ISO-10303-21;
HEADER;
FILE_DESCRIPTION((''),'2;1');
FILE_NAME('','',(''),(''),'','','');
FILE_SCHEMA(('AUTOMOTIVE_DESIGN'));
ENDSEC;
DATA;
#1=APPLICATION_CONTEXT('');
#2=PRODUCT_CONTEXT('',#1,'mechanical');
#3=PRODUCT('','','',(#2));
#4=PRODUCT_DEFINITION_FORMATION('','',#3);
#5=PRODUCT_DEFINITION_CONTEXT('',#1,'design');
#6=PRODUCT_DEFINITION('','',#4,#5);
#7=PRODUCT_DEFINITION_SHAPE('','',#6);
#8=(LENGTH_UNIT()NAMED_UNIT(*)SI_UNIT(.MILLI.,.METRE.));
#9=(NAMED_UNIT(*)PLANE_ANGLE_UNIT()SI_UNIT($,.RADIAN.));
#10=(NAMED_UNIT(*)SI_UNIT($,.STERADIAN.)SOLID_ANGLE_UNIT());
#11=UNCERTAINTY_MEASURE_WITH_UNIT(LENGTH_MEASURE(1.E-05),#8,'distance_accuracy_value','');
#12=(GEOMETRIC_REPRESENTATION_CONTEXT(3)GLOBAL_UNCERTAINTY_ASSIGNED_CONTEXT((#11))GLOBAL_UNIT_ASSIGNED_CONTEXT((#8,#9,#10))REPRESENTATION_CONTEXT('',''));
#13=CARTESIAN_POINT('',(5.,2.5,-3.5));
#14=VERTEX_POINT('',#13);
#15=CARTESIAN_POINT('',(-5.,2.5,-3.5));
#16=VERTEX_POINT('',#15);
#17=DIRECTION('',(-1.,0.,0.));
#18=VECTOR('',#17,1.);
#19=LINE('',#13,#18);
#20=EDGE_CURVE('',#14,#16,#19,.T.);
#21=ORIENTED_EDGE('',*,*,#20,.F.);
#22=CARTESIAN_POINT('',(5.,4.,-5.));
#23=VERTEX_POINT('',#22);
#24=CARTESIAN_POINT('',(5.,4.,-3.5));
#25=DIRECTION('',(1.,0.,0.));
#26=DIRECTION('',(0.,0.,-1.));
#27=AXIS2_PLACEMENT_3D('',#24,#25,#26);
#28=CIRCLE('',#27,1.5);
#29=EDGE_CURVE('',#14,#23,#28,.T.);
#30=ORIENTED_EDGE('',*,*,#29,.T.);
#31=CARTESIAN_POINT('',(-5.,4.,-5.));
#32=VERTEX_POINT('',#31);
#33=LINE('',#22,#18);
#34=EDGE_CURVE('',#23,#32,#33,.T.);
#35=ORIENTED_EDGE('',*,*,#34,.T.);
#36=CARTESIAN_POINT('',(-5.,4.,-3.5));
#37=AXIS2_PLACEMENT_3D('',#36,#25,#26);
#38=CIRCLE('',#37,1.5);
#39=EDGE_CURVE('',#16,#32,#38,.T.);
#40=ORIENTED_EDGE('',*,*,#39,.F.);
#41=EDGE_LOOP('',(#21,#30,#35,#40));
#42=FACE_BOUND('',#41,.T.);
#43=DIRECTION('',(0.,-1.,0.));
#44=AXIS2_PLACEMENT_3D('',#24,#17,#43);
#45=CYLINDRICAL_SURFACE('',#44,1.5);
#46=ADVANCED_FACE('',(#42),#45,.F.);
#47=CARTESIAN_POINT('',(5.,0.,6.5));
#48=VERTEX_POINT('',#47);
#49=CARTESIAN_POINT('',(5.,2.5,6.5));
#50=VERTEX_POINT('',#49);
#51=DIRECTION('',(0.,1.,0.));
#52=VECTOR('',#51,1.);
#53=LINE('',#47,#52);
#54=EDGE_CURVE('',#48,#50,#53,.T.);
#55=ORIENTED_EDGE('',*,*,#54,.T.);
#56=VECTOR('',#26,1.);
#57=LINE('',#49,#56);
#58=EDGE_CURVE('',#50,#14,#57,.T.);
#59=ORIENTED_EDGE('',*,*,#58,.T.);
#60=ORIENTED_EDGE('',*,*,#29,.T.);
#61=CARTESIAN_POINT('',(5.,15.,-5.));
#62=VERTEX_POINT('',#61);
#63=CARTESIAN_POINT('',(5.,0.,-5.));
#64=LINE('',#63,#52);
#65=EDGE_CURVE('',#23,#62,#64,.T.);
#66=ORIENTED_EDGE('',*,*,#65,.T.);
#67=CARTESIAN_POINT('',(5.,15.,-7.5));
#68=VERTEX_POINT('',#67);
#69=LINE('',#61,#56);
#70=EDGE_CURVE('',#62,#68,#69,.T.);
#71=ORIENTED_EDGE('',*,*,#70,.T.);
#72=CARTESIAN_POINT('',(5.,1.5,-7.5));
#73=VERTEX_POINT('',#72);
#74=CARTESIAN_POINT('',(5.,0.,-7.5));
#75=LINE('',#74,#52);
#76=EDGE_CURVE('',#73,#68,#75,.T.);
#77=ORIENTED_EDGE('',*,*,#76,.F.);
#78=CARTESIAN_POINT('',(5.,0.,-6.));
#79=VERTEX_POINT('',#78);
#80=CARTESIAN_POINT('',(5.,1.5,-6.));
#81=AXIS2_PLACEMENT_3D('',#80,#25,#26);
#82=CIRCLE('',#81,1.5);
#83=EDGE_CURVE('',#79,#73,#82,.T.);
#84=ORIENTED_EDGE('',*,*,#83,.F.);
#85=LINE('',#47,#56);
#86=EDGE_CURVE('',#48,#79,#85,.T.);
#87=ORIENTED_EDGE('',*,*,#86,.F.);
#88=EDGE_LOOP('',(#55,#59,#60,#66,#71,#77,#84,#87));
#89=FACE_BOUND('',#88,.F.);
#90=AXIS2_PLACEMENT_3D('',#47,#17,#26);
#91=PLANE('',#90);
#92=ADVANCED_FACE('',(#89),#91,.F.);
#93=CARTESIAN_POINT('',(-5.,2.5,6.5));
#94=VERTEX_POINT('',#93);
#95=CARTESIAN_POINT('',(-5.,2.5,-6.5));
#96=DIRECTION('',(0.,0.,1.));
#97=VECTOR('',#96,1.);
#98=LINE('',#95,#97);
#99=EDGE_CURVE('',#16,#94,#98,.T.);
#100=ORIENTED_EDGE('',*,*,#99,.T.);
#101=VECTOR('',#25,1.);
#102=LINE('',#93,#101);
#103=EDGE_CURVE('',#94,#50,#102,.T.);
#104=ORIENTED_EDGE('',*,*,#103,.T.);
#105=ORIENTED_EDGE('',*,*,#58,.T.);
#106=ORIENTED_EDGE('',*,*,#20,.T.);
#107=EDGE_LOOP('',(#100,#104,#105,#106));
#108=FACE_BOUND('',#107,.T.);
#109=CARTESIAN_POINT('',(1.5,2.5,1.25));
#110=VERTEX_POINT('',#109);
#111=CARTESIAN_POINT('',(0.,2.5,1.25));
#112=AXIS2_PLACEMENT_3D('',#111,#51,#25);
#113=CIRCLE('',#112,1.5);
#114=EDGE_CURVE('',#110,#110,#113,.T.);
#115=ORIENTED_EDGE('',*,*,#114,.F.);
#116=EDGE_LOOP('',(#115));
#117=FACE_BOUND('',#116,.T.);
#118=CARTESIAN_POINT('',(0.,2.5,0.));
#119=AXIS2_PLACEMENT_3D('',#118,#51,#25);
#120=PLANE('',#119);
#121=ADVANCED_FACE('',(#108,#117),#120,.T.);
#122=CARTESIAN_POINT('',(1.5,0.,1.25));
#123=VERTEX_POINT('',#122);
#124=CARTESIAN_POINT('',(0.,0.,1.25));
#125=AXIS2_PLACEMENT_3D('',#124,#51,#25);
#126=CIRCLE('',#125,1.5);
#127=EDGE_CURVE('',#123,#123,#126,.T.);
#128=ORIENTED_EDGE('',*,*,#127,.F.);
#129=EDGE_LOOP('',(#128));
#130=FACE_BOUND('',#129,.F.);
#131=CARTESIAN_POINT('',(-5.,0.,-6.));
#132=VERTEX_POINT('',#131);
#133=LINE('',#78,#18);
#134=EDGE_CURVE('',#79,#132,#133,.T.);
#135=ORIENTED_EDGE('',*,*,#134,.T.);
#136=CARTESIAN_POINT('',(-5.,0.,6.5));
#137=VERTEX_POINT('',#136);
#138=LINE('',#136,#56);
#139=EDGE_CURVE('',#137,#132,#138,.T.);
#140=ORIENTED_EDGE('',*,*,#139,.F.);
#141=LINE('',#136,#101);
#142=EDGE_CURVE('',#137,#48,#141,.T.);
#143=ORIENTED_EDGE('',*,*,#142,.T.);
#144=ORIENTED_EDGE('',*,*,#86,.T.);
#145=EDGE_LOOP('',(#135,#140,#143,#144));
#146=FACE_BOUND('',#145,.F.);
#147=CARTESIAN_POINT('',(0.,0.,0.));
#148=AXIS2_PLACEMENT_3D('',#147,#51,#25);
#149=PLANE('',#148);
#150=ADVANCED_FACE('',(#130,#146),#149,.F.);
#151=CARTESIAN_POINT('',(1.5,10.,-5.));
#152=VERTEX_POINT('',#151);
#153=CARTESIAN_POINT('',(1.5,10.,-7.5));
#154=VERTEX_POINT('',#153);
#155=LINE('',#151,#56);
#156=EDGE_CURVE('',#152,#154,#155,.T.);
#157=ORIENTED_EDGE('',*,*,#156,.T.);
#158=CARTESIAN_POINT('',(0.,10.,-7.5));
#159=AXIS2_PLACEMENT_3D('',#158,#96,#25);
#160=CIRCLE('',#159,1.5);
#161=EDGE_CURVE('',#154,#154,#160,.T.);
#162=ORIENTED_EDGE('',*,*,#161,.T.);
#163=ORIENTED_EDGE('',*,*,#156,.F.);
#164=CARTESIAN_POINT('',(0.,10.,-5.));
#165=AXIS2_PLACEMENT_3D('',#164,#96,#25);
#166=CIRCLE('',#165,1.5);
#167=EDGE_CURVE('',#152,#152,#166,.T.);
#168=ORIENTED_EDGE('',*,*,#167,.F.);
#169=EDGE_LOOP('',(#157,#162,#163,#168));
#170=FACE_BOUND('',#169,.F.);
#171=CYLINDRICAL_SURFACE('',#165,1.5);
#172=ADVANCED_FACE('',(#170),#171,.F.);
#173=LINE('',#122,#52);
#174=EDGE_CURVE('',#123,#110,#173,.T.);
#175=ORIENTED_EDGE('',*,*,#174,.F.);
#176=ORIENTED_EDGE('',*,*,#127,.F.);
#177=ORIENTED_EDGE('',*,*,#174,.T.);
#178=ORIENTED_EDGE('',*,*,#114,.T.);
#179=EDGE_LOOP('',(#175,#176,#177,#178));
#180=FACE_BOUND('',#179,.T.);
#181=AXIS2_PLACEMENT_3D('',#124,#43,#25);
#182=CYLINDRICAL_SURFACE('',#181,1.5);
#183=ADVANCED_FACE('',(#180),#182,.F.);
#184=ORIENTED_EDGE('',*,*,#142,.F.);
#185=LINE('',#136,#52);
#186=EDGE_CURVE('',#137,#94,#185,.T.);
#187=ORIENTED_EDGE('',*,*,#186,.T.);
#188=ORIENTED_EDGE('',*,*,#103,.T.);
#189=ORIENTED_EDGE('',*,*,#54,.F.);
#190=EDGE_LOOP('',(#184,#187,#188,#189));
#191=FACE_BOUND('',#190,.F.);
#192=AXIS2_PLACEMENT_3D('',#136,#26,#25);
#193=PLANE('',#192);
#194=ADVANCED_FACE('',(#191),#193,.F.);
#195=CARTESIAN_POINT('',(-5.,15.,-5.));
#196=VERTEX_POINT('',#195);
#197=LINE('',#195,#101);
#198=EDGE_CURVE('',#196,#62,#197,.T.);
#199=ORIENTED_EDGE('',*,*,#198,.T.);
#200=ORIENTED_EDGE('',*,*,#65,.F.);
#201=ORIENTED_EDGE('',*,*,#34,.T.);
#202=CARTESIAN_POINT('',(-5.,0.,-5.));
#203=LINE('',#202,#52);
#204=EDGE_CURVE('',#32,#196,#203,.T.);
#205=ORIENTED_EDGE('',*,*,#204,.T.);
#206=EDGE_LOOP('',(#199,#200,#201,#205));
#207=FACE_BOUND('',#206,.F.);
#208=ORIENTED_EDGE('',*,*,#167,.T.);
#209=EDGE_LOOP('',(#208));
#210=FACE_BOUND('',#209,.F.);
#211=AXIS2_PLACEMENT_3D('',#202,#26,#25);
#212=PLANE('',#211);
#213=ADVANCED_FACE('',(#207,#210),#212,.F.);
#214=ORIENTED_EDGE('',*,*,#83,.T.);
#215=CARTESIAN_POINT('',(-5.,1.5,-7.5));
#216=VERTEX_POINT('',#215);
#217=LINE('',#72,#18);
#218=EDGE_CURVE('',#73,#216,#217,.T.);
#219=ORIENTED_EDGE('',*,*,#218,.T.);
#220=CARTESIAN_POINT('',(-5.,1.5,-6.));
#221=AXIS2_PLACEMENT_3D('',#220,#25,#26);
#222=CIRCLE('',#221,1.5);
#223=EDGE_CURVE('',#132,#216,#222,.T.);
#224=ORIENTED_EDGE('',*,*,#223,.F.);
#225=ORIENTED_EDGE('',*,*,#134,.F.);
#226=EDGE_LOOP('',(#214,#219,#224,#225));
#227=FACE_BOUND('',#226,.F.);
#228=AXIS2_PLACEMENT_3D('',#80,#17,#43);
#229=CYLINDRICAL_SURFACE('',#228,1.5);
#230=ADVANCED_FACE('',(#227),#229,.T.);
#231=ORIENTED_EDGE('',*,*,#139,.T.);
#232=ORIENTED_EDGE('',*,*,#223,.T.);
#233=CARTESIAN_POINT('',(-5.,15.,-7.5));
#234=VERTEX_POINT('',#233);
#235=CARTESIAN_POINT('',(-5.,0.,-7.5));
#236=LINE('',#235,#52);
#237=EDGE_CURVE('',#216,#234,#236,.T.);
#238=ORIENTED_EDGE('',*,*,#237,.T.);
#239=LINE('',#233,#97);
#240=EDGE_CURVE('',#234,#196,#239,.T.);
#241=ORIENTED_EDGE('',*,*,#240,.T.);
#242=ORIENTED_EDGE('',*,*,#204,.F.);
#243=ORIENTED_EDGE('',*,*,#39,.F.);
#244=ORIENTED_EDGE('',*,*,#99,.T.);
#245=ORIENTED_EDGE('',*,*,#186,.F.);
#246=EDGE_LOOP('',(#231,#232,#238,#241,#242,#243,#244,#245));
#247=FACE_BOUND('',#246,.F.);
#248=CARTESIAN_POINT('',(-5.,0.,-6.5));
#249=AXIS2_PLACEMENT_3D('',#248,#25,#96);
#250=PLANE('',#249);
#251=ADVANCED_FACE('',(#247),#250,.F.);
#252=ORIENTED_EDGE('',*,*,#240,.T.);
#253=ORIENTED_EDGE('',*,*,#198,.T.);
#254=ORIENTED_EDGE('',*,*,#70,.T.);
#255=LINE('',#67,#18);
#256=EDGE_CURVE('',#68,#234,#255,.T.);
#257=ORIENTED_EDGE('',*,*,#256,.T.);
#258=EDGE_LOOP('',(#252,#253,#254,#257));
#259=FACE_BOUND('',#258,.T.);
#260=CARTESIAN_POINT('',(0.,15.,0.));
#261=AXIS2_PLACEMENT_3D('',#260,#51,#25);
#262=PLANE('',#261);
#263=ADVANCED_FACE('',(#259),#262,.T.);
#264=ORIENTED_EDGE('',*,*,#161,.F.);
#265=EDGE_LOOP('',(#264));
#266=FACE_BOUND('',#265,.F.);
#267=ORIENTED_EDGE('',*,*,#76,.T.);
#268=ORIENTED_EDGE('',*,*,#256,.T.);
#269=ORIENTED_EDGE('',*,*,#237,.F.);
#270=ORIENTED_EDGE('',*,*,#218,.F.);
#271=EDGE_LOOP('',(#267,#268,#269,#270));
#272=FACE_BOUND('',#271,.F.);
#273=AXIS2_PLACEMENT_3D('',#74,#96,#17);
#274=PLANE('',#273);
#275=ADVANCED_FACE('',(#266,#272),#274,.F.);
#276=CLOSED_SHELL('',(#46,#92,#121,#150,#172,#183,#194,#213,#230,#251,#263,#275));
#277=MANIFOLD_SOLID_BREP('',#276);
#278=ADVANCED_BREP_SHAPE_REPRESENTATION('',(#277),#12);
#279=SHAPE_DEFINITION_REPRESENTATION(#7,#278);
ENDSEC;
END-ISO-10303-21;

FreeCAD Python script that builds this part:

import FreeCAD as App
import Part
import Sketcher


def edges_at(feature, points):
    """Names of the edges that pass closest to the given points."""
    edges = feature.Shape.Edges
    near = lambda p: min(range(len(edges)), key=lambda i: edges[i].distToShape(Part.Vertex(*p))[0])
    return sorted({f"Edge{near(p) + 1}" for p in points})

doc = App.newDocument("Part")
body = doc.addObject("PartDesign::Body", "Body")

sketch1 = body.newObject("Sketcher::SketchObject", "Sketch")
sketch1.AttachmentSupport = (doc.getObject("XZ_Plane"), [""])
sketch1.MapMode = "FlatFace"
sketch1.addGeometry(Part.LineSegment(App.Vector(5, 6.5, 0), App.Vector(5, -6.5, 0)), False)
sketch1.addGeometry(Part.LineSegment(App.Vector(5, -6.5, 0), App.Vector(-5, -6.5, 0)), False)
sketch1.addGeometry(Part.LineSegment(App.Vector(-5, -6.5, 0), App.Vector(-5, 6.5, 0)), False)
sketch1.addGeometry(Part.LineSegment(App.Vector(-5, 6.5, 0), App.Vector(5, 6.5, 0)), False)
sketch1.addGeometry(Part.Circle(App.Vector(0, 1.25, 0), App.Vector(0, 0, 1), 1.5), False)
sketch1.addConstraint(Sketcher.Constraint("Coincident", 0, 2, 1, 1))
sketch1.addConstraint(Sketcher.Constraint("Coincident", 1, 2, 2, 1))
sketch1.addConstraint(Sketcher.Constraint("Coincident", 2, 2, 3, 1))
sketch1.addConstraint(Sketcher.Constraint("Coincident", 3, 2, 0, 1))
sketch1.addConstraint(Sketcher.Constraint("Vertical", 0))
sketch1.addConstraint(Sketcher.Constraint("Horizontal", 1))
sketch1.addConstraint(Sketcher.Constraint("Vertical", 2))
sketch1.addConstraint(Sketcher.Constraint("Horizontal", 3))
sketch1.addConstraint(Sketcher.Constraint("Symmetric", 0, 2, 2, 2, -1, 1))
sketch1.addConstraint(Sketcher.Constraint("PointOnObject", 4, 3, -2))
sketch1.addConstraint(Sketcher.Constraint("Diameter", 4, 3.0))
sketch1.addConstraint(Sketcher.Constraint("DistanceX", 1, 2, 1, 1, 10.0))
sketch1.addConstraint(Sketcher.Constraint("DistanceY", 0, 2, 0, 1, 13.0))
sketch1.addConstraint(Sketcher.Constraint("DistanceY", -1, 1, 4, 3, 1.25))
pad1 = body.newObject("PartDesign::Pad", "Pad")
pad1.Profile = sketch1
pad1.Length = 2.5
pad1.Reversed = True

sketch2 = body.newObject("Sketcher::SketchObject", "Sketch001")
sketch2.AttachmentSupport = (doc.getObject("XZ_Plane"), [""])
sketch2.MapMode = "FlatFace"
sketch2.addGeometry(Part.LineSegment(App.Vector(-5, -7.5, 0), App.Vector(-5, -5, 0)), False)
sketch2.addGeometry(Part.LineSegment(App.Vector(-5, -5, 0), App.Vector(5, -5, 0)), False)
sketch2.addGeometry(Part.LineSegment(App.Vector(5, -5, 0), App.Vector(5, -7.5, 0)), False)
sketch2.addGeometry(Part.LineSegment(App.Vector(5, -7.5, 0), App.Vector(-5, -7.5, 0)), False)
sketch2.addConstraint(Sketcher.Constraint("Coincident", 0, 2, 1, 1))
sketch2.addConstraint(Sketcher.Constraint("Coincident", 1, 2, 2, 1))
sketch2.addConstraint(Sketcher.Constraint("Coincident", 2, 2, 3, 1))
sketch2.addConstraint(Sketcher.Constraint("Coincident", 3, 2, 0, 1))
sketch2.addConstraint(Sketcher.Constraint("Vertical", 0))
sketch2.addConstraint(Sketcher.Constraint("Horizontal", 1))
sketch2.addConstraint(Sketcher.Constraint("Vertical", 2))
sketch2.addConstraint(Sketcher.Constraint("Horizontal", 3))
sketch2.addConstraint(Sketcher.Constraint("DistanceX", 1, 1, 1, 2, 10.0))
sketch2.addConstraint(Sketcher.Constraint("DistanceY", 0, 1, 0, 2, 2.5))
sketch2.addConstraint(Sketcher.Constraint("DistanceX", 0, 2, -1, 1, 5.0))
sketch2.addConstraint(Sketcher.Constraint("DistanceY", 0, 2, -1, 1, 5.0))
pad2 = body.newObject("PartDesign::Pad", "Pad001")
pad2.Profile = sketch2
pad2.Length = 15
pad2.Reversed = True

sketch3 = body.newObject("Sketcher::SketchObject", "Sketch002")
sketch3.AttachmentSupport = (doc.getObject("XY_Plane"), [""])
sketch3.MapMode = "FlatFace"
sketch3.AttachmentOffset = App.Placement(App.Vector(0, 0, -5), App.Rotation())
sketch3.addGeometry(Part.Circle(App.Vector(0, 10, 0), App.Vector(0, 0, 1), 1.5), False)
sketch3.addConstraint(Sketcher.Constraint("PointOnObject", 0, 3, -2))
sketch3.addConstraint(Sketcher.Constraint("Diameter", 0, 3.0))
sketch3.addConstraint(Sketcher.Constraint("DistanceY", -1, 1, 0, 3, 10.0))
pocket1 = body.newObject("PartDesign::Pocket", "Pocket")
pocket1.Profile = sketch3
pocket1.Length = 45
doc.recompute()

fillet = body.newObject("PartDesign::Fillet", "Fillet")
fillet.Base = (pocket1, edges_at(pocket1, [(0, 2.5, -5), (0, 0, -7.5)]))
fillet.Radius = 1.5

doc.recompute()
